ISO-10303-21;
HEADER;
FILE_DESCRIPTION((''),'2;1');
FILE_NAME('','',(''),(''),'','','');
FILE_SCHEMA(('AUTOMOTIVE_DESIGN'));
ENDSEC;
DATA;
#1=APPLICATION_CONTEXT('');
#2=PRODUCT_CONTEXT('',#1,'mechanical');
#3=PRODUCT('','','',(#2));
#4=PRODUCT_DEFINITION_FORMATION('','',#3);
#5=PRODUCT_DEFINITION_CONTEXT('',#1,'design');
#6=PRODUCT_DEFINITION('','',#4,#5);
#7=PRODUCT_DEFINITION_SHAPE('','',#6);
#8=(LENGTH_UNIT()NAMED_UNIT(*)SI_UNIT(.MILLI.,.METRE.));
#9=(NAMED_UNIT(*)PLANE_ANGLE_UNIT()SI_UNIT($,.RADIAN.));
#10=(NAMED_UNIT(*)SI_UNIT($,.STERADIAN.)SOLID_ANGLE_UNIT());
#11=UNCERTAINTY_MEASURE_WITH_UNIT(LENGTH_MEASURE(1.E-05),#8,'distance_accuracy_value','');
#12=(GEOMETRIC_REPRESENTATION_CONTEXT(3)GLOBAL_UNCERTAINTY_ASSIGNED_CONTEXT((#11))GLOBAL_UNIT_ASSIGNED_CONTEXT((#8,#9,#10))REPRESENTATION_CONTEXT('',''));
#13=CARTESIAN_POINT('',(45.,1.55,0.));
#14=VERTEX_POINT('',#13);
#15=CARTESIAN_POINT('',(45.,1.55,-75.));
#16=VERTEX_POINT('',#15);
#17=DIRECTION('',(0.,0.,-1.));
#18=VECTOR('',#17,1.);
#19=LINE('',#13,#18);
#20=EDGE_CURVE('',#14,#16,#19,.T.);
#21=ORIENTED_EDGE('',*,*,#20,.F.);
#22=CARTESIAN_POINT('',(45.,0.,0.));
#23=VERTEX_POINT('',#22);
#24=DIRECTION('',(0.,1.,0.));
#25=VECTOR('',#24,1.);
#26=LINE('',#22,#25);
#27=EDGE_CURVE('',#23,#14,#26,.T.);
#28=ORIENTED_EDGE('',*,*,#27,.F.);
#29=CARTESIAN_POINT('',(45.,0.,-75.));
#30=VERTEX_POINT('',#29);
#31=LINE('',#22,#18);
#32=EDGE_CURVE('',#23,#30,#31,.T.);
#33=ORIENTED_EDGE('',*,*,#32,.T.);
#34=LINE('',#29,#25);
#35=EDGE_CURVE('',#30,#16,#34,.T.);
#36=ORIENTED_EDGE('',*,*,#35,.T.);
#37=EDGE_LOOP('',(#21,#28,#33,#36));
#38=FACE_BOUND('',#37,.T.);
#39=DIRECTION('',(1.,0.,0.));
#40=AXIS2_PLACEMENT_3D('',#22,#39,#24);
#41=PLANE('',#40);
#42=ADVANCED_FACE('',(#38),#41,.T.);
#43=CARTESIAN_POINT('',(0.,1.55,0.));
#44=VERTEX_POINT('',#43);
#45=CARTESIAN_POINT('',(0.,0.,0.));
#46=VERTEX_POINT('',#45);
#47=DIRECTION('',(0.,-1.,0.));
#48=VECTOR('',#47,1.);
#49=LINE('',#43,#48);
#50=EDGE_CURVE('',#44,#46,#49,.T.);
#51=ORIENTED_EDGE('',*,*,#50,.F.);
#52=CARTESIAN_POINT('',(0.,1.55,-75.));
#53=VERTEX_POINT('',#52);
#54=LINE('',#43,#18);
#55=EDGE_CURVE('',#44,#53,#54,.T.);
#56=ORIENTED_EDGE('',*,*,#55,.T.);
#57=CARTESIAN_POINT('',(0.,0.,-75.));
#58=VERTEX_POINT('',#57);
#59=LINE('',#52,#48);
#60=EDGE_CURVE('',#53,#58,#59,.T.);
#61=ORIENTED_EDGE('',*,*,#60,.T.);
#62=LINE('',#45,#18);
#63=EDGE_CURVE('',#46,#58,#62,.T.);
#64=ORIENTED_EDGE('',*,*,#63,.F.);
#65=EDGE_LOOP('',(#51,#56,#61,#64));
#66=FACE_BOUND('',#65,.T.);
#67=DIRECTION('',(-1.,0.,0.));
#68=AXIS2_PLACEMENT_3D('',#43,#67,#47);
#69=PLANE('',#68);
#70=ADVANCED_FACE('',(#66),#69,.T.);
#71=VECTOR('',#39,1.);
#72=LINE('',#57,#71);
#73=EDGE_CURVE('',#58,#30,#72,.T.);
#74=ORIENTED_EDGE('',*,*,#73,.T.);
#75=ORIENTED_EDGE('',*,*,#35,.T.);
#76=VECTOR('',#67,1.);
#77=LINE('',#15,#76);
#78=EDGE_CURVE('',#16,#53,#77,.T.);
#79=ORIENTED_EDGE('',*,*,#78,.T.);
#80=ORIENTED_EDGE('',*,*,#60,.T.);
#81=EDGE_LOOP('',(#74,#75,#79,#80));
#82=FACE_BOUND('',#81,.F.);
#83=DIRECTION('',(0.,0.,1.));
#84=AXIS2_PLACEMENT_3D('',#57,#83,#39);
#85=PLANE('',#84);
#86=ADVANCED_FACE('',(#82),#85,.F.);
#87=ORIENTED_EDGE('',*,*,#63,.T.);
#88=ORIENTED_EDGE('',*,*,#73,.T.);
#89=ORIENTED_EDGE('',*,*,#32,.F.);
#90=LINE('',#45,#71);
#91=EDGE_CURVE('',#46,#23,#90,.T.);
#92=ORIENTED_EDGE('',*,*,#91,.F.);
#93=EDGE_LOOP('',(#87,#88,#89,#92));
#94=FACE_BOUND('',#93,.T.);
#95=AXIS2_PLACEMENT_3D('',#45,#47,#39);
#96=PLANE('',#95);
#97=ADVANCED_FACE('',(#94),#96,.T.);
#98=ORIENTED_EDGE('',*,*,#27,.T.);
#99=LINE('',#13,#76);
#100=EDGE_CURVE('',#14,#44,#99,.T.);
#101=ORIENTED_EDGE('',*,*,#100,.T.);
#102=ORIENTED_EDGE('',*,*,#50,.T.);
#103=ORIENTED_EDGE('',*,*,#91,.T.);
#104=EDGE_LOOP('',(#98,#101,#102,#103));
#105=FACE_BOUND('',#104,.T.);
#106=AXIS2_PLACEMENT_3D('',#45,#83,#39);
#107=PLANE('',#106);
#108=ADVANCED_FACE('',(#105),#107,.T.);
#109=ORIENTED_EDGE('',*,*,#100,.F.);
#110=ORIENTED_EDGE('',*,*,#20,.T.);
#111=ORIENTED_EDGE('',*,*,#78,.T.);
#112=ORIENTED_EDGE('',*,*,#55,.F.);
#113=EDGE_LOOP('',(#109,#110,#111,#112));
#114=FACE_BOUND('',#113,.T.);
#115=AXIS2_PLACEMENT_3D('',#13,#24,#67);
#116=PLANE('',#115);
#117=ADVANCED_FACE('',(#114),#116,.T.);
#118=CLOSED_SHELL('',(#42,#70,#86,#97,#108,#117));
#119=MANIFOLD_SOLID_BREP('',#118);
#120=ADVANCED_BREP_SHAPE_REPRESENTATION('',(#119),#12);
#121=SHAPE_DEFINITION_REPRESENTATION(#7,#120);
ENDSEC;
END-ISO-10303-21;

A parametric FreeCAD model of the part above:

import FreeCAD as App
import Part
import Sketcher

V = App.Vector
Q = App.Units.Quantity

doc = App.newDocument("Part")
body = doc.addObject("PartDesign::Body", "Body")

# Sketch on XY plane
sketch1 = body.newObject("Sketcher::SketchObject", "Sketch")
sketch1.AttachmentSupport = (doc.getObject("XY_Plane"), [""])
sketch1.MapMode = "FlatFace"
sketch1.addGeometry(Part.LineSegment(V(0, 1.55, 0), V(0, 0, 0)), False)
sketch1.addGeometry(Part.LineSegment(V(0, 0, 0), V(45, 0, 0)), False)
sketch1.addGeometry(Part.LineSegment(V(45, 0, 0), V(45, 1.55, 0)), False)
sketch1.addGeometry(Part.LineSegment(V(45, 1.55, 0), V(0, 1.55, 0)), False)
sketch1.addConstraint(Sketcher.Constraint("Coincident", 0, 2, 1, 1))
sketch1.addConstraint(Sketcher.Constraint("Coincident", 1, 2, 2, 1))
sketch1.addConstraint(Sketcher.Constraint("Coincident", 2, 2, 3, 1))
sketch1.addConstraint(Sketcher.Constraint("Coincident", 3, 2, 0, 1))
sketch1.addConstraint(Sketcher.Constraint("Vertical", 0))
sketch1.addConstraint(Sketcher.Constraint("Horizontal", 1))
sketch1.addConstraint(Sketcher.Constraint("Vertical", 2))
sketch1.addConstraint(Sketcher.Constraint("Horizontal", 3))
sketch1.addConstraint(Sketcher.Constraint("Coincident", 0, 2, -1, 1))
sketch1.addConstraint(Sketcher.Constraint("DistanceX", 1, 1, 1, 2, Q("45 mm")))
sketch1.addConstraint(Sketcher.Constraint("DistanceY", 0, 2, 0, 1, Q("1.55 mm")))
pad1 = body.newObject("PartDesign::Pad", "Pad")
pad1.Profile = sketch1
pad1.Length = 75
pad1.Reversed = True

doc.recompute()
